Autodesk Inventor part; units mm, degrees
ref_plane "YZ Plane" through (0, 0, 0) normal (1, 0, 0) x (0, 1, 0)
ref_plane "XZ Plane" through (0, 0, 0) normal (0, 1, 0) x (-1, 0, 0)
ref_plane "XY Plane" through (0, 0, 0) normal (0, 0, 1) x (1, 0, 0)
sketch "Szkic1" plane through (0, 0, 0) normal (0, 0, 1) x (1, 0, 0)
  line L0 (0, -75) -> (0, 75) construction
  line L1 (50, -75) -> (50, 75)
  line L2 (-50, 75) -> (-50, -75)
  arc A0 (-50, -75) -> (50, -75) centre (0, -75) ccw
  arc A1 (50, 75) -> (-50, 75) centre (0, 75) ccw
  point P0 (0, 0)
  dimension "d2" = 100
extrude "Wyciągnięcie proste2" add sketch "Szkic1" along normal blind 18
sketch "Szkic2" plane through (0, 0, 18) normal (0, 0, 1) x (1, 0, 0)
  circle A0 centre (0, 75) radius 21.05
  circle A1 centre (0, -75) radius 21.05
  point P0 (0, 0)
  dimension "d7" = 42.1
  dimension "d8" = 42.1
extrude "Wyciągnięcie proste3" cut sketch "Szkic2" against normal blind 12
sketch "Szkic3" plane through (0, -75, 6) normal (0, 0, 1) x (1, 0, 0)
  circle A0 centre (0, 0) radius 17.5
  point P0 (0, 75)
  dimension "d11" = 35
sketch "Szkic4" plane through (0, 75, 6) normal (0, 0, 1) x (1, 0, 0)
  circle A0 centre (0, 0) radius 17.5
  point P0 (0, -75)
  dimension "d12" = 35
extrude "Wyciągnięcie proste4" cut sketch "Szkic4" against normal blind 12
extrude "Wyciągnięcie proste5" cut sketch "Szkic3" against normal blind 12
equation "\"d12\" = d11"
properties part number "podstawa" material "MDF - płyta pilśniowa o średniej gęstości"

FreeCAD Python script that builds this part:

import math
import FreeCAD as App
import Part
import Sketcher
from FreeCAD import Vector

doc = App.newDocument("Part")
body = doc.addObject("PartDesign::Body", "Body")

sketch1 = body.newObject("Sketcher::SketchObject", "Sketch")
sketch1.AttachmentSupport = (doc.getObject("XY_Plane"), [""])
sketch1.MapMode = "FlatFace"
sketch1.addGeometry([
    Part.ArcOfCircle(Part.Circle(Vector(0, -75, 0), Vector(0, 0, 1), 50), math.radians(180), math.radians(360)),
    Part.LineSegment(Vector(50, -75, 0), Vector(50, 75, 0)),
    Part.ArcOfCircle(Part.Circle(Vector(0, 75, 0), Vector(0, 0, 1), 50), math.radians(0), math.radians(180)),
    Part.LineSegment(Vector(-50, 75, 0), Vector(-50, -75, 0)),
], False)
sketch1.addConstraint([
    Sketcher.Constraint("Tangent", 0, 2, 1, 1),
    Sketcher.Constraint("Tangent", 1, 2, 2, 1),
    Sketcher.Constraint("Tangent", 2, 2, 3, 1),
    Sketcher.Constraint("Tangent", 3, 2, 0, 1),
    Sketcher.Constraint("Vertical", 1),
    Sketcher.Constraint("Vertical", 3),
    Sketcher.Constraint("Symmetric", 0, 3, 2, 3, -1, 1),
    Sketcher.Constraint("Radius", 0, 50.0),
    Sketcher.Constraint("DistanceY", 1, 1, 1, 2, 150.0),
])
pad1 = body.newObject("PartDesign::Pad", "Pad")
pad1.Profile = sketch1
pad1.Length = 18

sketch2 = body.newObject("Sketcher::SketchObject", "Sketch001")
sketch2.AttachmentSupport = (doc.getObject("XY_Plane"), [""])
sketch2.MapMode = "FlatFace"
sketch2.AttachmentOffset = App.Placement(Vector(0, 0, 18), App.Rotation())
sketch2.addGeometry([
    Part.Circle(Vector(0, 75, 0), Vector(0, 0, 1), 21),
    Part.Circle(Vector(0, -75, 0), Vector(0, 0, 1), 21),
], False)
sketch2.addConstraint([
    Sketcher.Constraint("Equal", 0, 1),
    Sketcher.Constraint("Symmetric", 0, 3, 1, 3, -1, 1),
    Sketcher.Constraint("PointOnObject", 0, 3, -2),
    Sketcher.Constraint("Diameter", 0, 42.1),
    Sketcher.Constraint("DistanceY", -1, 1, 0, 3, 75.0),
])
pocket1 = body.newObject("PartDesign::Pocket", "Pocket")
pocket1.Profile = sketch2
pocket1.Length = 12

sketch3 = body.newObject("Sketcher::SketchObject", "Sketch002")
sketch3.AttachmentSupport = (doc.getObject("XY_Plane"), [""])
sketch3.MapMode = "FlatFace"
sketch3.AttachmentOffset = App.Placement(Vector(0, 0, 6), App.Rotation())
sketch3.addGeometry(Part.Circle(Vector(0, 75, 0), Vector(0, 0, 1), 18), False)
sketch3.addConstraint([
    Sketcher.Constraint("PointOnObject", 0, 3, -2),
    Sketcher.Constraint("Diameter", 0, 35.0),
    Sketcher.Constraint("DistanceY", -1, 1, 0, 3, 75.0),
])
pocket2 = body.newObject("PartDesign::Pocket", "Pocket001")
pocket2.Profile = sketch3
pocket2.Length = 12

sketch4 = body.newObject("Sketcher::SketchObject", "Sketch003")
sketch4.AttachmentSupport = (doc.getObject("XY_Plane"), [""])
sketch4.MapMode = "FlatFace"
sketch4.AttachmentOffset = App.Placement(Vector(0, 0, 6), App.Rotation())
sketch4.addGeometry(Part.Circle(Vector(0, -75, 0), Vector(0, 0, 1), 18), False)
sketch4.addConstraint([
    Sketcher.Constraint("PointOnObject", 0, 3, -2),
    Sketcher.Constraint("Diameter", 0, 35.0),
    Sketcher.Constraint("DistanceY", 0, 3, -1, 1, 75.0),
])
pocket3 = body.newObject("PartDesign::Pocket", "Pocket002")
pocket3.Profile = sketch4
pocket3.Length = 12

doc.recompute()
